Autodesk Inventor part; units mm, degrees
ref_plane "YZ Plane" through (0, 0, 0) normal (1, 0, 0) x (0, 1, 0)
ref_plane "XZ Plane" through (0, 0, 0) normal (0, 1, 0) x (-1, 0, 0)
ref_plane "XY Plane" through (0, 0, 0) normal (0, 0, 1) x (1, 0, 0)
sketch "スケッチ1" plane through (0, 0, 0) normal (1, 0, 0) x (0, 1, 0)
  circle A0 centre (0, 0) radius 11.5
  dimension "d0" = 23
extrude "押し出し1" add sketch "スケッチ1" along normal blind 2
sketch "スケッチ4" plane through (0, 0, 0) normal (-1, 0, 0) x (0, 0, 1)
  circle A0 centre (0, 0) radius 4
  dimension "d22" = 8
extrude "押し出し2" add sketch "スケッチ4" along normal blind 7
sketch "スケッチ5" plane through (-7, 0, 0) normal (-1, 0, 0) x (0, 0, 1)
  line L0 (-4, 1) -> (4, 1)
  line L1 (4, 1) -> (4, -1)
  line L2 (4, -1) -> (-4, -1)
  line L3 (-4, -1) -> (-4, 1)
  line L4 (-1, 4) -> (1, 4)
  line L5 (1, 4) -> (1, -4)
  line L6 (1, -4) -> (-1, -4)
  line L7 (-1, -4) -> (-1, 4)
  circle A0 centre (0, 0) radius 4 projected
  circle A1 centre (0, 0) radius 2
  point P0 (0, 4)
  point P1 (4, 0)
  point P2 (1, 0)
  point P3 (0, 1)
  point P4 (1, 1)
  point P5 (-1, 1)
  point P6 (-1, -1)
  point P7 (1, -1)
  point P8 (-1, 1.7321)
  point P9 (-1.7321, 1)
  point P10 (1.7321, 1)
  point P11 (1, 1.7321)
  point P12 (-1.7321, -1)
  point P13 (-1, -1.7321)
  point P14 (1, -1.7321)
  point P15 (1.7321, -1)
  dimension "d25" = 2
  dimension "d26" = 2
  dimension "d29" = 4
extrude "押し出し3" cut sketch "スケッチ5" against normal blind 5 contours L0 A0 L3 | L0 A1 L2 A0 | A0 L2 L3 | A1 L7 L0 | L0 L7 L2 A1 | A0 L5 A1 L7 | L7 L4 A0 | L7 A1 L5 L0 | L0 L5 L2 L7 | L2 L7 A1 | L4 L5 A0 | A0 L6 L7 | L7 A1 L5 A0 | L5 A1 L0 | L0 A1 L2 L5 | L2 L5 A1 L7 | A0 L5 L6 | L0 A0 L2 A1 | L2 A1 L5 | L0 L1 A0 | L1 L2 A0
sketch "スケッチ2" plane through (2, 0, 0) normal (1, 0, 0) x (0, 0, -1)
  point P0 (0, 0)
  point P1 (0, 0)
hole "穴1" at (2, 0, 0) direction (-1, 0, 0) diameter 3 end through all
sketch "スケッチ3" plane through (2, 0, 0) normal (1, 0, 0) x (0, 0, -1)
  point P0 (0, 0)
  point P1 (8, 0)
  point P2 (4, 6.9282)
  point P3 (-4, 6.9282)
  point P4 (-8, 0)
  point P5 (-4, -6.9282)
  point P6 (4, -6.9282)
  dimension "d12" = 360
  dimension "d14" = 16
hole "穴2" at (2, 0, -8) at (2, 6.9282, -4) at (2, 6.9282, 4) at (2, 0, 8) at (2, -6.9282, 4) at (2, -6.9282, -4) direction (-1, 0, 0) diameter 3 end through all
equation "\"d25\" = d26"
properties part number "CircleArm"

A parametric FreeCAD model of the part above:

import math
import FreeCAD as App
import Part
import Sketcher

V = App.Vector

doc = App.newDocument("Part")
body = doc.addObject("PartDesign::Body", "Body")

# Sketch on YZ plane
sketch1 = doc.addObject("Sketcher::SketchObject", "Sketch")
body.addObject(sketch1)
sketch1.AttachmentSupport = (doc.YZ_Plane, [""])
sketch1.MapMode = "FlatFace"
sketch1.addGeometry(Part.Circle(V(0, 0, 0), V(0, 0, 1), 11.5), False)
sketch1.addConstraint([
    Sketcher.Constraint("Coincident", 0, 3, -1, 1),
    Sketcher.Constraint("Diameter", 0, 23.0),
])
pad1 = doc.addObject("PartDesign::Pad", "Pad")
body.addObject(pad1)
pad1.Profile = sketch1
pad1.Length = 2

# Sketch on YZ plane
sketch2 = doc.addObject("Sketcher::SketchObject", "Sketch001")
body.addObject(sketch2)
sketch2.AttachmentSupport = (doc.YZ_Plane, [""])
sketch2.MapMode = "FlatFace"
sketch2.addGeometry(Part.Circle(V(0, 0, 0), V(0, 0, 1), 4), False)
sketch2.addConstraint([
    Sketcher.Constraint("Coincident", 0, 3, -1, 1),
    Sketcher.Constraint("Diameter", 0, 8.0),
])
pad2 = doc.addObject("PartDesign::Pad", "Pad001")
body.addObject(pad2)
pad2.Profile = sketch2
pad2.Length = 7
pad2.Reversed = True

# Sketch on YZ plane
sketch3 = doc.addObject("Sketcher::SketchObject", "Sketch002")
body.addObject(sketch3)
sketch3.AttachmentSupport = (doc.YZ_Plane, [""])
sketch3.MapMode = "FlatFace"
sketch3.AttachmentOffset = App.Placement(V(0, 0, -7), App.Rotation())
sketch3.addGeometry([
    Part.LineSegment(V(1, -4, 0), V(-1, -4, 0)),  # 0
    Part.LineSegment(V(-1, -4, 0), V(-1, -1.732051, 0)),  # 1
    Part.ArcOfCircle(Part.Circle(V(0, 0, 0), V(0, 0, 1), 2), math.radians(-150), math.radians(-120)),  # 2
    Part.LineSegment(V(-1.732051, -1, 0), V(-4, -1, 0)),  # 3
    Part.LineSegment(V(-4, -1, 0), V(-4, 1, 0)),  # 4
    Part.LineSegment(V(-4, 1, 0), V(-1.732051, 1, 0)),  # 5
    Part.ArcOfCircle(Part.Circle(V(0, 0, 0), V(0, 0, 1), 2), math.radians(120), math.radians(150)),  # 6
    Part.LineSegment(V(-1, 1.732051, 0), V(-1, 4, 0)),  # 7
    Part.LineSegment(V(-1, 4, 0), V(1, 4, 0)),  # 8
    Part.LineSegment(V(1, 4, 0), V(1, 1.732051, 0)),  # 9
    Part.ArcOfCircle(Part.Circle(V(0, 0, 0), V(0, 0, 1), 2), math.radians(30), math.radians(60)),  # 10
    Part.LineSegment(V(1.732051, 1, 0), V(4, 1, 0)),  # 11
    Part.LineSegment(V(4, 1, 0), V(4, -1, 0)),  # 12
    Part.LineSegment(V(4, -1, 0), V(1.732051, -1, 0)),  # 13
    Part.ArcOfCircle(Part.Circle(V(0, 0, 0), V(0, 0, 1), 2), math.radians(-60), math.radians(-30)),  # 14
    Part.LineSegment(V(1, -1.732051, 0), V(1, -4, 0)),  # 15
], False)
sketch3.addConstraint([
    Sketcher.Constraint("Coincident", 0, 2, 1, 1),
    Sketcher.Constraint("Coincident", 1, 2, 2, 2),
    Sketcher.Constraint("Coincident", 2, 1, 3, 1),
    Sketcher.Constraint("Coincident", 3, 2, 4, 1),
    Sketcher.Constraint("Coincident", 4, 2, 5, 1),
    Sketcher.Constraint("Coincident", 5, 2, 6, 2),
    Sketcher.Constraint("Coincident", 6, 1, 7, 1),
    Sketcher.Constraint("Coincident", 7, 2, 8, 1),
    Sketcher.Constraint("Coincident", 8, 2, 9, 1),
    Sketcher.Constraint("Coincident", 9, 2, 10, 2),
    Sketcher.Constraint("Coincident", 10, 1, 11, 1),
    Sketcher.Constraint("Coincident", 11, 2, 12, 1),
    Sketcher.Constraint("Coincident", 12, 2, 13, 1),
    Sketcher.Constraint("Coincident", 13, 2, 14, 2),
    Sketcher.Constraint("Coincident", 14, 1, 15, 1),
    Sketcher.Constraint("Coincident", 15, 2, 0, 1),
    Sketcher.Constraint("Horizontal", 0),
    Sketcher.Constraint("Vertical", 1),
    Sketcher.Constraint("Horizontal", 3),
    Sketcher.Constraint("Vertical", 4),
    Sketcher.Constraint("Horizontal", 5),
    Sketcher.Constraint("Vertical", 7),
    Sketcher.Constraint("Horizontal", 8),
    Sketcher.Constraint("Vertical", 9),
    Sketcher.Constraint("Horizontal", 11),
    Sketcher.Constraint("Vertical", 12),
    Sketcher.Constraint("Horizontal", 13),
    Sketcher.Constraint("Vertical", 15),
    Sketcher.Constraint("Coincident", 2, 3, -1, 1),
    Sketcher.Constraint("Coincident", 6, 3, -1, 1),
    Sketcher.Constraint("Coincident", 10, 3, -1, 1),
    Sketcher.Constraint("Coincident", 14, 3, -1, 1),
    Sketcher.Constraint("Equal", 2, 6),
    Sketcher.Constraint("Equal", 6, 10),
    Sketcher.Constraint("Equal", 10, 14),
    Sketcher.Constraint("Symmetric", 0, 2, 8, 2, -1, 1),
    Sketcher.Constraint("Symmetric", 3, 2, 11, 2, -1, 1),
    Sketcher.Constraint("Horizontal", 6, 1, 9, 2),
    Sketcher.Constraint("Horizontal", 5, 2, 10, 1),
    Sketcher.Constraint("Horizontal", 3, 2, 12, 2),
    Sketcher.Constraint("Horizontal", 1, 2, 14, 1),
    Sketcher.Constraint("Equal", 13, 1),
    Sketcher.Constraint("Equal", 8, 4),
    Sketcher.Constraint("Radius", 2, 2.0),
    Sketcher.Constraint("DistanceX", 0, 2, 0, 1, 2.0),
    Sketcher.Constraint("DistanceY", 0, 2, -1, 1, 4.0),
])
pocket1 = doc.addObject("PartDesign::Pocket", "Pocket")
body.addObject(pocket1)
pocket1.Profile = sketch3
pocket1.Length = 5
pocket1.Reversed = True

# Sketch on YZ plane
sketch4 = doc.addObject("Sketcher::SketchObject", "Sketch003")
body.addObject(sketch4)
sketch4.AttachmentSupport = (doc.YZ_Plane, [""])
sketch4.MapMode = "FlatFace"
sketch4.AttachmentOffset = App.Placement(V(0, 0, 2), App.Rotation())
sketch4.addGeometry(Part.Circle(V(0, 0, 0), V(0, 0, 1), 1.5), False)
sketch4.addConstraint([
    Sketcher.Constraint("Coincident", 0, 3, -1, 1),
    Sketcher.Constraint("Diameter", 0, 3.0),
])
doc.recompute()
hole = doc.addObject("PartDesign::Hole", "Hole")
body.addObject(hole)
hole.Profile = sketch4
hole.ThreadType = "None"
hole.Diameter = 3
hole.DepthType = "ThroughAll"

# Sketch on YZ plane
sketch5 = doc.addObject("Sketcher::SketchObject", "Sketch004")
body.addObject(sketch5)
sketch5.AttachmentSupport = (doc.YZ_Plane, [""])
sketch5.MapMode = "FlatFace"
sketch5.AttachmentOffset = App.Placement(V(0, 0, 2), App.Rotation())
sketch5.addGeometry([
    Part.Circle(V(0, -8, 0), V(0, 0, 1), 1.5),  # 0
    Part.Circle(V(6.9282, -4, 0), V(0, 0, 1), 1.5),  # 1
    Part.Circle(V(6.9282, 4, 0), V(0, 0, 1), 1.5),  # 2
    Part.Circle(V(0, 8, 0), V(0, 0, 1), 1.5),  # 3
    Part.Circle(V(-6.9282, 4, 0), V(0, 0, 1), 1.5),  # 4
    Part.Circle(V(-6.9282, -4, 0), V(0, 0, 1), 1.5),  # 5
], False)
sketch5.addConstraint([
    Sketcher.Constraint("Equal", 0, 1),
    Sketcher.Constraint("Equal", 1, 2),
    Sketcher.Constraint("Equal", 2, 3),
    Sketcher.Constraint("Equal", 3, 4),
    Sketcher.Constraint("Equal", 4, 5),
    Sketcher.Constraint("Symmetric", 0, 3, 3, 3, -1, 1),
    Sketcher.Constraint("Symmetric", 1, 3, 4, 3, -1, 1),
    Sketcher.Constraint("Symmetric", 2, 3, 5, 3, -1, 1),
    Sketcher.Constraint("Symmetric", 2, 3, 4, 3, -2),
    Sketcher.Constraint("PointOnObject", 0, 3, -2),
    Sketcher.Constraint("Diameter", 0, 3.0),
    Sketcher.Constraint("DistanceY", 0, 3, -1, 1, 8.0),
    Sketcher.Constraint("DistanceY", 1, 3, -1, 1, 4.0),
    Sketcher.Constraint("DistanceX", -1, 1, 1, 3, 6.9282),
])
doc.recompute()
hole2 = doc.addObject("PartDesign::Hole", "Hole001")
body.addObject(hole2)
hole2.Profile = sketch5
hole2.ThreadType = "None"
hole2.Diameter = 3
hole2.DepthType = "ThroughAll"

doc.recompute()
